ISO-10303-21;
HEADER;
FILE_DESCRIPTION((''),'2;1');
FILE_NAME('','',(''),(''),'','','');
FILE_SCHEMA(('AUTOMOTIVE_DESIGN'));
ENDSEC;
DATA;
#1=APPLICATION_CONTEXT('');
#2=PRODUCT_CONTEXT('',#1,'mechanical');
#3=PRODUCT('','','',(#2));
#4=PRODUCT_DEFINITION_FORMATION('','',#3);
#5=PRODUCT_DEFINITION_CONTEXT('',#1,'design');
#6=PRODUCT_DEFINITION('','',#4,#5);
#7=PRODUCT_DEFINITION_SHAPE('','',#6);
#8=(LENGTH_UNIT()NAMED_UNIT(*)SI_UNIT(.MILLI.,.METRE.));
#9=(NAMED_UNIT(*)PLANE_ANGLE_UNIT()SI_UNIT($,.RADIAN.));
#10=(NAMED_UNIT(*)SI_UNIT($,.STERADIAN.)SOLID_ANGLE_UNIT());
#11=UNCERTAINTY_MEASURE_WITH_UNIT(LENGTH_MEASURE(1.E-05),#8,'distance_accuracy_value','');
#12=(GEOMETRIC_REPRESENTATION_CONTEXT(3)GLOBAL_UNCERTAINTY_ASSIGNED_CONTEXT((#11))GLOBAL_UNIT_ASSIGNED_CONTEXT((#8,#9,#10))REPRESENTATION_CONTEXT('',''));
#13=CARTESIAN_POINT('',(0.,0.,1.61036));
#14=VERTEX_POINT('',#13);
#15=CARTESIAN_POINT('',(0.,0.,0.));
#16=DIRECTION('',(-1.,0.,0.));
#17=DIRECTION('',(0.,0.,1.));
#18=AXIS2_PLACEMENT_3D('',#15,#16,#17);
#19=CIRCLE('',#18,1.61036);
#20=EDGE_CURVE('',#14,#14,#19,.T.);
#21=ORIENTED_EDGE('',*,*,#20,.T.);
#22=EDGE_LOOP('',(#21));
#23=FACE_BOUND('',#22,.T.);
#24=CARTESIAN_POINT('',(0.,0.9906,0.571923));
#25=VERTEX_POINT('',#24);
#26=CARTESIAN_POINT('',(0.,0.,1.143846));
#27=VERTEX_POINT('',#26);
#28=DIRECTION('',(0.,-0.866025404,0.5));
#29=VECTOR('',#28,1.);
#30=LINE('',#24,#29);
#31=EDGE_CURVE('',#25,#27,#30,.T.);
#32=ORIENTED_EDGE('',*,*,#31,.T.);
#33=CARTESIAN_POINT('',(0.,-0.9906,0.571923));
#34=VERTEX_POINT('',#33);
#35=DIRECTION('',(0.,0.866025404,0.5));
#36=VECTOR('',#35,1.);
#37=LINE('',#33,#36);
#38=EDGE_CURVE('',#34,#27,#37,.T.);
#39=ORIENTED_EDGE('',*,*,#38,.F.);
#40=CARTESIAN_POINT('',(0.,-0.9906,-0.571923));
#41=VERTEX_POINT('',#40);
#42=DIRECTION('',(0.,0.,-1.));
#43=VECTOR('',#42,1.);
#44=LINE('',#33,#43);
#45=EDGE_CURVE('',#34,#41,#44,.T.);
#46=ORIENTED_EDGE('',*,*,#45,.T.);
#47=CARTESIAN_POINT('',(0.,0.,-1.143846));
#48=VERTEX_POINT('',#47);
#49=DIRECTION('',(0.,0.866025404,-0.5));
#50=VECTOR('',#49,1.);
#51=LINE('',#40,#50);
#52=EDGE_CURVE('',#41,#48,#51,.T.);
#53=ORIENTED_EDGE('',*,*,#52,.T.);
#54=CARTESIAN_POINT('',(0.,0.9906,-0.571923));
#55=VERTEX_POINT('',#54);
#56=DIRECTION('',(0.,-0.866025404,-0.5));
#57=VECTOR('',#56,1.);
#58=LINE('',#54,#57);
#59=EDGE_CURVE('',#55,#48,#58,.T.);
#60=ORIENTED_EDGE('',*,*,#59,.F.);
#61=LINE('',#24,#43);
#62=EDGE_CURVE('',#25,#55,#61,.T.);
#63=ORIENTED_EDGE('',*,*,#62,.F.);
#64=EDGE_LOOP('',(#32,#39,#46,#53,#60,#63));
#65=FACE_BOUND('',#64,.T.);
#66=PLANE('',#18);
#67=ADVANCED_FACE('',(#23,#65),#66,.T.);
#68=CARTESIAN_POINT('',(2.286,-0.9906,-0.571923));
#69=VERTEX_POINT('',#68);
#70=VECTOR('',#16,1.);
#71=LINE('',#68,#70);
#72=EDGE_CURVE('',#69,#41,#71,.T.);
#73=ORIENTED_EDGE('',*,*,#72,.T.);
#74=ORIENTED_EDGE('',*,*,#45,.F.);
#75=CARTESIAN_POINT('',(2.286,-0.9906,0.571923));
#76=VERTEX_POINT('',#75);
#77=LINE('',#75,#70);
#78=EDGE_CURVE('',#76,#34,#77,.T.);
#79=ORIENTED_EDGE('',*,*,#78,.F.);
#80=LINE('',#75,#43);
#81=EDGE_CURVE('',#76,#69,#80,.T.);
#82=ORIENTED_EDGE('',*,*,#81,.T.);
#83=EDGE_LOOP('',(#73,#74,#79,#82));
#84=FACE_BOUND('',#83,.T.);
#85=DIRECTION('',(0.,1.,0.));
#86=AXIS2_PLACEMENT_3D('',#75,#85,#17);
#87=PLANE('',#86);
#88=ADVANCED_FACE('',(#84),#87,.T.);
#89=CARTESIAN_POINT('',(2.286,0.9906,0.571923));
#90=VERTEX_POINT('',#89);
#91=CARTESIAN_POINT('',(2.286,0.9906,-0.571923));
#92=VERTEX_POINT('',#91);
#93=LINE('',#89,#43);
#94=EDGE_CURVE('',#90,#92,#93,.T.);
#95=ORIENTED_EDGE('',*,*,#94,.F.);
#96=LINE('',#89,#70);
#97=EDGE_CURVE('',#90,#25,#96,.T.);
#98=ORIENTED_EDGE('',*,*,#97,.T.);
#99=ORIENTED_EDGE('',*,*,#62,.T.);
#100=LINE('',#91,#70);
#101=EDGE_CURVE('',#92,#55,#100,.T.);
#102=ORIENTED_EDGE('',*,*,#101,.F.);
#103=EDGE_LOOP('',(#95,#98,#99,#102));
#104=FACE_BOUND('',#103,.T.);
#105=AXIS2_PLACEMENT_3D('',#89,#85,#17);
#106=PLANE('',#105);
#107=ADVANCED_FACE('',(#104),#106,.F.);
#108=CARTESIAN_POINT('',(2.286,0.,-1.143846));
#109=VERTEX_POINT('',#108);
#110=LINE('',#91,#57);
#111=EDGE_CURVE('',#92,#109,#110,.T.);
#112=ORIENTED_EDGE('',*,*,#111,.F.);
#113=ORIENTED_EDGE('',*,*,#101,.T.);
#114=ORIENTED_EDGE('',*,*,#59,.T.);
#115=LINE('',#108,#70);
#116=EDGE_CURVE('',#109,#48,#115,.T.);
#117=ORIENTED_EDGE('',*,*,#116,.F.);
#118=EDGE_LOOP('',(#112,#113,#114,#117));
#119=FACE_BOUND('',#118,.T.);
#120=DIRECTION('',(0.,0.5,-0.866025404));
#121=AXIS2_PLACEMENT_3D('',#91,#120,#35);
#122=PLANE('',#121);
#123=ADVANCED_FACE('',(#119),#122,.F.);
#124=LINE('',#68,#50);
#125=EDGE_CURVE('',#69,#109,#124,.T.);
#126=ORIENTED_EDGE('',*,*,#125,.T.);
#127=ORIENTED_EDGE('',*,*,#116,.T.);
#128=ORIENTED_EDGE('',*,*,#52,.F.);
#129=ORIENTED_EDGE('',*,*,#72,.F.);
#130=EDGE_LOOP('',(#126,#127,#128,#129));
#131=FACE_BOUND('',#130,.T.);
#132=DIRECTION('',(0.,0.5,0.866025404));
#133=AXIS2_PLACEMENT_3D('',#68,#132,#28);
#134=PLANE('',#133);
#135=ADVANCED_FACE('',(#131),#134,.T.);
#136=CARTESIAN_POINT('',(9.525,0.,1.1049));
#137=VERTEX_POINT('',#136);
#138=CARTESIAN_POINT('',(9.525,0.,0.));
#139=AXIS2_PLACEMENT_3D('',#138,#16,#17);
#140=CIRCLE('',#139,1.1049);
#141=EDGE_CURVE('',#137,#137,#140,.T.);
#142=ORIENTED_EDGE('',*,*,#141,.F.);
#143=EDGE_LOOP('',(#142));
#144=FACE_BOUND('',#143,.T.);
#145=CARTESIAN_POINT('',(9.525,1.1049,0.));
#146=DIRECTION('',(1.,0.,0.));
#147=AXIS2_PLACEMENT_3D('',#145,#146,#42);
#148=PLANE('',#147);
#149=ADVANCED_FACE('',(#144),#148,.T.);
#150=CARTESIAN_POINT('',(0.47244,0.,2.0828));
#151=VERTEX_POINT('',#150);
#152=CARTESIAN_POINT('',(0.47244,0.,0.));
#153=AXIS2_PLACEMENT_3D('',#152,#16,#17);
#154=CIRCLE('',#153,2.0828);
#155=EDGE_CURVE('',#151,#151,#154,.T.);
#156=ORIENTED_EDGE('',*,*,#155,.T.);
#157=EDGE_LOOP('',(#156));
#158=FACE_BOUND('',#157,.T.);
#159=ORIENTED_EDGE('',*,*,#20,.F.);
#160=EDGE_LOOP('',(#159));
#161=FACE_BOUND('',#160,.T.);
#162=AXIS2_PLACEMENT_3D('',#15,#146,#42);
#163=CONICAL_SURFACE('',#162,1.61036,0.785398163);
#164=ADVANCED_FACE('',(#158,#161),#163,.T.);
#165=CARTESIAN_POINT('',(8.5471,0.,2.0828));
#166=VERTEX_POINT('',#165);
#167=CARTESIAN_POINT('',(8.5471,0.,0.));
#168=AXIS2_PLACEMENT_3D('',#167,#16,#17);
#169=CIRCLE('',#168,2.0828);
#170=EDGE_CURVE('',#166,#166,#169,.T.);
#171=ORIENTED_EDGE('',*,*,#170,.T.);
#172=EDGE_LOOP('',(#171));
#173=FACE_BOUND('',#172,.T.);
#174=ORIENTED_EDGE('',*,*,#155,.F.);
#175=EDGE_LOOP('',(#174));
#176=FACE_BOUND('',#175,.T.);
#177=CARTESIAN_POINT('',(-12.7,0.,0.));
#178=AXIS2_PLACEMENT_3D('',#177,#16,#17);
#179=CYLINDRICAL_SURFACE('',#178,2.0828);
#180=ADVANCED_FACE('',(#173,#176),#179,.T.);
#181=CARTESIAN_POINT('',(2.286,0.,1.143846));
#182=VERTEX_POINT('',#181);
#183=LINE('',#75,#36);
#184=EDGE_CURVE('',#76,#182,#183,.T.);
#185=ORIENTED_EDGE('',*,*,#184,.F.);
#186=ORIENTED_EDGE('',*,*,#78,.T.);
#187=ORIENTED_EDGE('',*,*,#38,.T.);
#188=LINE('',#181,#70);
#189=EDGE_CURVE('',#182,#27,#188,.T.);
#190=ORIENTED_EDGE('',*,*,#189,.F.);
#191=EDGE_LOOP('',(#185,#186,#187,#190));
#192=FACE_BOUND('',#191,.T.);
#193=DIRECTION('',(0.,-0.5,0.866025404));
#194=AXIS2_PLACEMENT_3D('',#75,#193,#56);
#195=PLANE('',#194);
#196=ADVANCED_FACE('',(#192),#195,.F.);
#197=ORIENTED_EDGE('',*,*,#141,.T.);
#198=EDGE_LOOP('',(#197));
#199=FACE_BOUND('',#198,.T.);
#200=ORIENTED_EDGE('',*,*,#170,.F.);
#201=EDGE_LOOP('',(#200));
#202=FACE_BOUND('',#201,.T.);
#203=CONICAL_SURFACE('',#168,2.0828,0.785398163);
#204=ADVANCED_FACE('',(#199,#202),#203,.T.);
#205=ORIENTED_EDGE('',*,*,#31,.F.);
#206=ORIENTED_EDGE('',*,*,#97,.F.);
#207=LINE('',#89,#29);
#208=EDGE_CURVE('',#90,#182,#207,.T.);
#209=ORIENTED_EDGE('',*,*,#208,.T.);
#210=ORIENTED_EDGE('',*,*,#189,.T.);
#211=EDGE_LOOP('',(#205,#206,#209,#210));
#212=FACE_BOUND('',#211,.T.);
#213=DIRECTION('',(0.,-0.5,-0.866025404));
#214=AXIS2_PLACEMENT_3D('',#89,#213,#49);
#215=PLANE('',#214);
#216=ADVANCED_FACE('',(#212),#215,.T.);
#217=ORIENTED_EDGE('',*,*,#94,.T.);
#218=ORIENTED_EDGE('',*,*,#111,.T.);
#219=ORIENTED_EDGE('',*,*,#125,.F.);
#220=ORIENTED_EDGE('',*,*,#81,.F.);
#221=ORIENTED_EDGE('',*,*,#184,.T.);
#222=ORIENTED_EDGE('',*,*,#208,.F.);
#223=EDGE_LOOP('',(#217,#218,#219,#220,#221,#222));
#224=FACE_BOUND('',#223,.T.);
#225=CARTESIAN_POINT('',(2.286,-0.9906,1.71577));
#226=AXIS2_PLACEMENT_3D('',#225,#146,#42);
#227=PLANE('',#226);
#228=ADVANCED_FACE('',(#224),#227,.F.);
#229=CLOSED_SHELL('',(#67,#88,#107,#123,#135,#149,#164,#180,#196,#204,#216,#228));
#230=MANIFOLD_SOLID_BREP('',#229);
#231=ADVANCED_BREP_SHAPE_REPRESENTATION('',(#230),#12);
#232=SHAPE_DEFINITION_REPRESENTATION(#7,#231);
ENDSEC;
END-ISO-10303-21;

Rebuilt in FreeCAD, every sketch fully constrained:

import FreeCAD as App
import Part
import Sketcher
from FreeCAD import Vector
Q = App.Units.Quantity


def add_polygon(sketch, points):
    """Adds a closed chain of lines whose ends are joined by coincident constraints."""
    first, n = sketch.GeometryCount, len(points)
    for a, b in zip(points, points[1:] + points[:1]):
        sketch.addGeometry(Part.LineSegment(App.Vector(*a, 0), App.Vector(*b, 0)), False)
    for i in range(n):
        sketch.addConstraint(Sketcher.Constraint("Coincident", first + i, 2, first + (i + 1) % n, 1))

doc = App.newDocument("Part")
body = doc.addObject("PartDesign::Body", "Body")

# Sketch on XY plane
sketch1 = body.newObject("Sketcher::SketchObject", "Sketch")
sketch1.AttachmentSupport = (doc.getObject("XY_Plane"), [""])
sketch1.MapMode = "FlatFace"
add_polygon(sketch1, [(0, 1.61036), (0, 0), (9.525, 0), (9.525, 1.1049), (8.5471, 2.0828), (0.47244, 2.0828)])  # lines 0-5
sketch1.addConstraint([
    Sketcher.Constraint("Vertical", 0),
    Sketcher.Constraint("Horizontal", 1),
    Sketcher.Constraint("Vertical", 2),
    Sketcher.Constraint("Horizontal", 4),
    Sketcher.Constraint("Coincident", 0, 2, -1, 1),
    Sketcher.Constraint("Perpendicular", 3, 5),
    Sketcher.Constraint("Angle", 3, Q("135 deg")),
    Sketcher.Constraint("DistanceX", 1, 1, 1, 2, Q("0.375 in")),
    Sketcher.Constraint("DistanceX", 4, 2, 4, 1, Q("0.3179 in")),
    Sketcher.Constraint("DistanceY", 0, 2, 0, 1, Q("0.0634 in")),
    Sketcher.Constraint("DistanceY", 2, 1, 2, 2, Q("0.0435 in")),
])
revolution = body.newObject("PartDesign::Revolution", "Revolution")
revolution.Profile = sketch1
revolution.ReferenceAxis = (sketch1, ["H_Axis"])
revolution.Angle = 360

# Sketch on YZ plane
sketch2 = body.newObject("Sketcher::SketchObject", "Sketch001")
sketch2.AttachmentSupport = (doc.getObject("YZ_Plane"), [""])
sketch2.MapMode = "FlatFace"
add_polygon(sketch2, [(0.9906, 0.571923), (0.9906, -0.571923), (0, -1.143846), (-0.9906, -0.571923), (-0.9906, 0.571923), (0, 1.143846)])  # lines 0-5
sketch2.addConstraint([
    Sketcher.Constraint("Vertical", 0),
    Sketcher.Constraint("Vertical", 3),
    Sketcher.Constraint("Symmetric", 0, 2, 3, 2, -1, 1),
    Sketcher.Constraint("Symmetric", 1, 2, 4, 2, -1, 1),
    Sketcher.Constraint("PointOnObject", 1, 2, -2),
    Sketcher.Constraint("Parallel", 2, 5),
    Sketcher.Constraint("Horizontal", 0, 2, 2, 2),
    Sketcher.Constraint("Angle", 1, Q("-150 deg")),
    Sketcher.Constraint("DistanceX", -1, 1, 0, 2, Q("0.039 in")),
    Sketcher.Constraint("DistanceY", 0, 2, 0, 1, 1.143846),
])
pocket1 = body.newObject("PartDesign::Pocket", "Pocket")
pocket1.Profile = sketch2
pocket1.Length = Q("0.09 in")
pocket1.Reversed = True

doc.recompute()
